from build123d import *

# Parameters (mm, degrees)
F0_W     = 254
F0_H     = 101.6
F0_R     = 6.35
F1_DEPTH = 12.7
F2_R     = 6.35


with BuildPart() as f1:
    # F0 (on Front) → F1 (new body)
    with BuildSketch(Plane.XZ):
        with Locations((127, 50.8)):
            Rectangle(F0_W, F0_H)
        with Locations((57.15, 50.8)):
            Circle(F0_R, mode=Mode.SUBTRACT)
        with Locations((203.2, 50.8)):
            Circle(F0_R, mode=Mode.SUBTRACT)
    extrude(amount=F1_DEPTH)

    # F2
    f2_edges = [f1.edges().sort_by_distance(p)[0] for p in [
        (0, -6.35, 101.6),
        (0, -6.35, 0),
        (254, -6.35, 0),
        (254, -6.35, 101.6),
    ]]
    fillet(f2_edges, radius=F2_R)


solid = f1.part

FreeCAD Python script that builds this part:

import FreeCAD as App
import Part
import Sketcher
from FreeCAD import Vector
Q = App.Units.Quantity


def edges_at(feature, points):
    """Names of the edges that pass closest to the given points."""
    edges = feature.Shape.Edges
    near = lambda p: min(range(len(edges)), key=lambda i: edges[i].distToShape(Part.Vertex(*p))[0])
    return sorted({f"Edge{near(p) + 1}" for p in points})

doc = App.newDocument("Part")
body = doc.addObject("PartDesign::Body", "Body")

# Sketch on XZ plane
sketch1 = doc.addObject("Sketcher::SketchObject", "Sketch")
body.addObject(sketch1)
sketch1.AttachmentSupport = (doc.XZ_Plane, [""])
sketch1.MapMode = "FlatFace"
sketch1.addGeometry(Part.LineSegment(Vector(0, 102, 0), Vector(0, 0, 0)), False)
sketch1.addGeometry(Part.LineSegment(Vector(0, 0, 0), Vector(254, 0, 0)), False)
sketch1.addGeometry(Part.LineSegment(Vector(254, 0, 0), Vector(254, 102, 0)), False)
sketch1.addGeometry(Part.LineSegment(Vector(254, 102, 0), Vector(0, 102, 0)), False)
sketch1.addGeometry(Part.Circle(Vector(57, 51, 0), Vector(0, 0, 1), 6), False)
sketch1.addGeometry(Part.Circle(Vector(203, 51, 0), Vector(0, 0, 1), 6), False)
sketch1.addConstraint(Sketcher.Constraint("Coincident", 0, 2, 1, 1))
sketch1.addConstraint(Sketcher.Constraint("Coincident", 1, 2, 2, 1))
sketch1.addConstraint(Sketcher.Constraint("Coincident", 2, 2, 3, 1))
sketch1.addConstraint(Sketcher.Constraint("Coincident", 3, 2, 0, 1))
sketch1.addConstraint(Sketcher.Constraint("Vertical", 0))
sketch1.addConstraint(Sketcher.Constraint("Horizontal", 1))
sketch1.addConstraint(Sketcher.Constraint("Vertical", 2))
sketch1.addConstraint(Sketcher.Constraint("Horizontal", 3))
sketch1.addConstraint(Sketcher.Constraint("Coincident", 0, 2, -1, 1))
sketch1.addConstraint(Sketcher.Constraint("Equal", 4, 5))
sketch1.addConstraint(Sketcher.Constraint("Horizontal", 4, 3, 5, 3))
sketch1.addConstraint(Sketcher.Constraint("Diameter", 4, Q("0.5 in")))
sketch1.addConstraint(Sketcher.Constraint("DistanceX", 1, 1, 1, 2, Q("10 in")))
sketch1.addConstraint(Sketcher.Constraint("DistanceY", 0, 2, 0, 1, Q("4 in")))
sketch1.addConstraint(Sketcher.Constraint("DistanceY", -1, 1, 4, 3, Q("2 in")))
sketch1.addConstraint(Sketcher.Constraint("DistanceX", -1, 1, 5, 3, Q("8 in")))
sketch1.addConstraint(Sketcher.Constraint("DistanceX", -1, 1, 4, 3, Q("2.25 in")))
pad1 = doc.addObject("PartDesign::Pad", "Pad")
body.addObject(pad1)
pad1.Profile = sketch1
pad1.Length = Q("0.5 in")
doc.recompute()

fillet = doc.addObject("PartDesign::Fillet", "Fillet")
body.addObject(fillet)
fillet.Base = (pad1, edges_at(pad1, [
    (0, -6.35, 101.6),
    (0, -6.35, 0),
    (254, -6.35, 0),
    (254, -6.35, 101.6),
]))
fillet.Radius = Q("0.25 in")

doc.recompute()
